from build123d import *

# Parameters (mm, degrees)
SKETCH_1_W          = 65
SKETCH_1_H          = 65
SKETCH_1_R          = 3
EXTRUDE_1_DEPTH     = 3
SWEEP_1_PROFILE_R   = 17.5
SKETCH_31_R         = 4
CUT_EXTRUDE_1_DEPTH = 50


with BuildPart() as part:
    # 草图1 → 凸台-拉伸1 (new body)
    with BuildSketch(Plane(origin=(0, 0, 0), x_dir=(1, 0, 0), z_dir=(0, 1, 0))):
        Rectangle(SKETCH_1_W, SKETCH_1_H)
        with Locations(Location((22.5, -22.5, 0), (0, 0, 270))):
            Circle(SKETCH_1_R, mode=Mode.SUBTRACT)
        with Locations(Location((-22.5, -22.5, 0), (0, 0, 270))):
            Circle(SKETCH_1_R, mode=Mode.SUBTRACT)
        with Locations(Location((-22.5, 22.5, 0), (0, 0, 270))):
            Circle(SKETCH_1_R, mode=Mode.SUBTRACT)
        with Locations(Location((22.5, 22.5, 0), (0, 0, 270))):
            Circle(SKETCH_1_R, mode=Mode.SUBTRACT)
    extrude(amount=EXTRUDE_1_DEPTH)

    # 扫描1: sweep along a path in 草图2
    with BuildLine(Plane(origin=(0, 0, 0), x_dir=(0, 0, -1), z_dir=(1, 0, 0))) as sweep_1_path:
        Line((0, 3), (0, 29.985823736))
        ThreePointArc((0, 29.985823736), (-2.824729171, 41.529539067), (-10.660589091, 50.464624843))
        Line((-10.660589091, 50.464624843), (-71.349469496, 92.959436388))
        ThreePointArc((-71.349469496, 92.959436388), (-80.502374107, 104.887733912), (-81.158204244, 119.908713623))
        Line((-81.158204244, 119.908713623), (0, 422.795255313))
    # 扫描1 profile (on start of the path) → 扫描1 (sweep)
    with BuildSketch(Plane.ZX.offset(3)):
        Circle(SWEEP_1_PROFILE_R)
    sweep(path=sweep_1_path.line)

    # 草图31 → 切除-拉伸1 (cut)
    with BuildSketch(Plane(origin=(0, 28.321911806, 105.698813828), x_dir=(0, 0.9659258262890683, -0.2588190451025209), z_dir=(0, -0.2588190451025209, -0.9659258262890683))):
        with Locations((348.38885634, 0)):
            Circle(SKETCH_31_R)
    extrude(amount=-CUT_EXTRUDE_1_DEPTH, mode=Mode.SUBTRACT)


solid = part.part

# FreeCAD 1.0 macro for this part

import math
import FreeCAD as App
import Part
import Sketcher
Q = App.Units.Quantity


def add_polygon(sketch, points):
    """Adds a closed chain of lines whose ends are joined by coincident constraints."""
    first, n = sketch.GeometryCount, len(points)
    for a, b in zip(points, points[1:] + points[:1]):
        sketch.addGeometry(Part.LineSegment(App.Vector(*a, 0), App.Vector(*b, 0)), False)
    for i in range(n):
        sketch.addConstraint(Sketcher.Constraint("Coincident", first + i, 2, first + (i + 1) % n, 1))

doc = App.newDocument("Part")
body = doc.addObject("PartDesign::Body", "Body")

# Sketch on XZ plane
sketch1 = body.newObject("Sketcher::SketchObject", "Sketch")
sketch1.AttachmentSupport = (doc.getObject("XZ_Plane"), [""])
sketch1.MapMode = "FlatFace"
add_polygon(sketch1, [(-32.5, -32.5), (-32.5, 32.5), (32.5, 32.5), (32.5, -32.5)])  # lines 0-3
sketch1.addGeometry(Part.Circle(App.Vector(-22.5, 22.5, 0), App.Vector(0, 0, 1), 3), False)  # 4
sketch1.addGeometry(Part.Circle(App.Vector(22.5, 22.5, 0), App.Vector(0, 0, 1), 3), False)  # 5
sketch1.addGeometry(Part.Circle(App.Vector(-22.5, -22.5, 0), App.Vector(0, 0, 1), 3), False)  # 6
sketch1.addGeometry(Part.Circle(App.Vector(22.5, -22.5, 0), App.Vector(0, 0, 1), 3), False)  # 7
sketch1.addConstraint([
    Sketcher.Constraint("Vertical", 0),
    Sketcher.Constraint("Horizontal", 1),
    Sketcher.Constraint("Vertical", 2),
    Sketcher.Constraint("Horizontal", 3),
    Sketcher.Constraint("Equal", 4, 5),
    Sketcher.Constraint("Equal", 5, 6),
    Sketcher.Constraint("Equal", 6, 7),
    Sketcher.Constraint("Symmetric", 5, 3, 6, 3, -1, 1),
    Sketcher.Constraint("Symmetric", 4, 3, 7, 3, -1, 1),
    Sketcher.Constraint("Symmetric", 0, 2, 2, 2, -1, 1),
    Sketcher.Constraint("Symmetric", 4, 3, 5, 3, -2),
    Sketcher.Constraint("Equal", 3, 0),
    Sketcher.Constraint("Diameter", 4, Q("6 mm")),
    Sketcher.Constraint("DistanceX", 1, 1, 1, 2, Q("65 mm")),
    Sketcher.Constraint("DistanceX", 4, 3, 5, 3, Q("45 mm")),
    Sketcher.Constraint("DistanceY", 6, 3, 4, 3, Q("45 mm")),
])
pad1 = body.newObject("PartDesign::Pad", "Pad")
pad1.Profile = sketch1
pad1.Length = 3
pad1.Reversed = True

# Sketch on XZ plane
sketch2 = body.newObject("Sketcher::SketchObject", "Sketch001")
sketch2.AttachmentSupport = (doc.getObject("XZ_Plane"), [""])
sketch2.MapMode = "FlatFace"
sketch2.AttachmentOffset = App.Placement(App.Vector(0, 0, -3), App.Rotation())
sketch2.addGeometry(Part.Circle(App.Vector(0, 0, 0), App.Vector(0, 0, 1), 17.5), False)
sketch2.addConstraint([
    Sketcher.Constraint("Coincident", 0, 3, -1, 1),
    Sketcher.Constraint("Diameter", 0, Q("35 mm")),
])

# Sketch on YZ plane
sketch3 = body.newObject("Sketcher::SketchObject", "Sketch002")
sketch3.AttachmentSupport = (doc.getObject("YZ_Plane"), [""])
sketch3.MapMode = "FlatFace"
sketch3.addGeometry([
    Part.LineSegment(App.Vector(3, 0, 0), App.Vector(29.985824, 0, 0)),  # 0
    Part.ArcOfCircle(Part.Circle(App.Vector(29.985824, 25, 0), App.Vector(0, 0, 1), 25), math.radians(-90), math.radians(-35)),  # 1
    Part.LineSegment(App.Vector(50.464625, 10.660589, 0), App.Vector(92.959436, 71.349469, 0)),  # 2
    Part.ArcOfCircle(Part.Circle(App.Vector(113.438237, 57.010059, 0), App.Vector(0, 0, 1), 25), math.radians(75), math.radians(145)),  # 3
    Part.LineSegment(App.Vector(119.908714, 81.158204, 0), App.Vector(422.795255, 0, 0)),  # 4
], False)
sketch3.addConstraint([
    Sketcher.Constraint("Tangent", 0, 2, 1, 1),
    Sketcher.Constraint("Tangent", 1, 2, 2, 1),
    Sketcher.Constraint("Tangent", 2, 2, 3, 2),
    Sketcher.Constraint("Tangent", 3, 1, 4, 1),
    Sketcher.Constraint("Horizontal", 0),
    Sketcher.Constraint("Equal", 1, 3),
    Sketcher.Constraint("PointOnObject", 0, 1, -1),
    Sketcher.Constraint("PointOnObject", 4, 2, -1),
    Sketcher.Constraint("Radius", 1, Q("25 mm")),
    Sketcher.Constraint("Angle", 2, Q("55 deg")),
    Sketcher.Constraint("Angle", 4, Q("-15 deg")),
    Sketcher.Constraint("DistanceX", -1, 1, 0, 1, Q("3 mm")),
    Sketcher.Constraint("Distance", 4, Q("313.571222 mm")),
    Sketcher.Constraint("DistanceX", 0, 1, 0, 2, Q("26.985824 mm")),
])
doc.recompute()

additivepipe = body.newObject("PartDesign::AdditivePipe", "AdditivePipe")
additivepipe.Profile = sketch2
additivepipe.Spine = (sketch3, ["Edge1", "Edge2", "Edge3", "Edge4", "Edge5"])

# Sketch on an angled plane
sketch4 = body.newObject("Sketcher::SketchObject", "Sketch003")
sketch4.Placement = App.Placement(App.Vector(0, 28.321912, 105.698814), App.Rotation(App.Vector(0, 0.965925826, -0.258819045), App.Vector(0.999999999, 0, 0), App.Vector(0, -0.258819045, -0.965925826), "ZXY"))
sketch4.addGeometry(Part.Circle(App.Vector(348.388856, 0, 0), App.Vector(0, 0, 1), 4), False)
sketch4.addConstraint([
    Sketcher.Constraint("PointOnObject", 0, 3, -1),
    Sketcher.Constraint("Diameter", 0, Q("8 mm")),
    Sketcher.Constraint("DistanceX", -1, 1, 0, 3, Q("348.388856 mm")),
])
pocket1 = body.newObject("PartDesign::Pocket", "Pocket")
pocket1.Profile = sketch4
pocket1.Length = 50

doc.recompute()
